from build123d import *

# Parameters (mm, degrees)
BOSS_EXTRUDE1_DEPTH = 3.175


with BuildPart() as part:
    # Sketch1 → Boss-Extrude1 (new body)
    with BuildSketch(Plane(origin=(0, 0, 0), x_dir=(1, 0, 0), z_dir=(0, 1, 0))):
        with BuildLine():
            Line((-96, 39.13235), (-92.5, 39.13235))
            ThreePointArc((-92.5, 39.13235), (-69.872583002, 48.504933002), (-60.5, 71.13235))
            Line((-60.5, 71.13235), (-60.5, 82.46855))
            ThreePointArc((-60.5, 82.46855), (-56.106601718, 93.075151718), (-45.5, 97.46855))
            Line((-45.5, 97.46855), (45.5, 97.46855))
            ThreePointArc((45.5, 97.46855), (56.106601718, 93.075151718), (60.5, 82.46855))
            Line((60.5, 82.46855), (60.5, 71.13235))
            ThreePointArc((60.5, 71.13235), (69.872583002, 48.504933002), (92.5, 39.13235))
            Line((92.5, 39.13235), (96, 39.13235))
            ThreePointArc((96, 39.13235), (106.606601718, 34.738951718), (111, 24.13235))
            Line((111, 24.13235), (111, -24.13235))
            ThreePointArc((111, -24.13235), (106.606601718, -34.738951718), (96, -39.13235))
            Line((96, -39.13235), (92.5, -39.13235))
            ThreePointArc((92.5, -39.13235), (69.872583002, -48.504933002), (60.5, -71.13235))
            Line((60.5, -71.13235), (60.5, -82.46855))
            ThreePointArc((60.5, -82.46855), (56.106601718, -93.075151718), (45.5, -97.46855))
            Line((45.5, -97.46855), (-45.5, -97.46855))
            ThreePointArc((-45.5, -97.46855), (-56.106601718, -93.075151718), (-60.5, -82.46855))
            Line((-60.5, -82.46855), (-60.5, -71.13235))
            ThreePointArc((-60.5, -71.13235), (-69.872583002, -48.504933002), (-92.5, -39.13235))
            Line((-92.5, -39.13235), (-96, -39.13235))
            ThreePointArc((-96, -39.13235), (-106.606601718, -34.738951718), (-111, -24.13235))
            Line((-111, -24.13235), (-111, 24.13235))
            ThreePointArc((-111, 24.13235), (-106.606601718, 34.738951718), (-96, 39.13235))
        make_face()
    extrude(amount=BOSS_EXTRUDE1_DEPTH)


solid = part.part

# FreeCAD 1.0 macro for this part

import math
import FreeCAD as App
import Part
import Sketcher

doc = App.newDocument("Part")
body = doc.addObject("PartDesign::Body", "Body")

# Sketch on XZ plane
sketch1 = body.newObject("Sketcher::SketchObject", "Sketch")
sketch1.AttachmentSupport = (doc.getObject("XZ_Plane"), [""])
sketch1.MapMode = "FlatFace"
sketch1.addGeometry([
    Part.LineSegment(App.Vector(-92.5, -39.1, 0), App.Vector(-96, -39.1, 0)),  # 0
    Part.ArcOfCircle(Part.Circle(App.Vector(-96, -24.1, 0), App.Vector(0, 0, 1), 15), math.radians(180), math.radians(270)),  # 1
    Part.LineSegment(App.Vector(-111, -24.1, 0), App.Vector(-111, 24.1, 0)),  # 2
    Part.ArcOfCircle(Part.Circle(App.Vector(-96, 24.1, 0), App.Vector(0, 0, 1), 15), math.radians(90), math.radians(180)),  # 3
    Part.LineSegment(App.Vector(-96, 39.1, 0), App.Vector(-92.5, 39.1, 0)),  # 4
    Part.ArcOfCircle(Part.Circle(App.Vector(-92.5, 71.1, 0), App.Vector(0, 0, 1), 32), math.radians(-90), math.radians(0)),  # 5
    Part.LineSegment(App.Vector(-60.5, 71.1, 0), App.Vector(-60.5, 82.5, 0)),  # 6
    Part.ArcOfCircle(Part.Circle(App.Vector(-45.5, 82.5, 0), App.Vector(0, 0, 1), 15), math.radians(90), math.radians(180)),  # 7
    Part.LineSegment(App.Vector(-45.5, 97.5, 0), App.Vector(45.5, 97.5, 0)),  # 8
    Part.ArcOfCircle(Part.Circle(App.Vector(45.5, 82.5, 0), App.Vector(0, 0, 1), 15), math.radians(0), math.radians(90)),  # 9
    Part.LineSegment(App.Vector(60.5, 82.5, 0), App.Vector(60.5, 71.1, 0)),  # 10
    Part.ArcOfCircle(Part.Circle(App.Vector(92.5, 71.1, 0), App.Vector(0, 0, 1), 32), math.radians(180), math.radians(270)),  # 11
    Part.LineSegment(App.Vector(92.5, 39.1, 0), App.Vector(96, 39.1, 0)),  # 12
    Part.ArcOfCircle(Part.Circle(App.Vector(96, 24.1, 0), App.Vector(0, 0, 1), 15), math.radians(0), math.radians(90)),  # 13
    Part.LineSegment(App.Vector(111, 24.1, 0), App.Vector(111, -24.1, 0)),  # 14
    Part.ArcOfCircle(Part.Circle(App.Vector(96, -24.1, 0), App.Vector(0, 0, 1), 15), math.radians(-90), math.radians(0)),  # 15
    Part.LineSegment(App.Vector(96, -39.1, 0), App.Vector(92.5, -39.1, 0)),  # 16
    Part.ArcOfCircle(Part.Circle(App.Vector(92.5, -71.1, 0), App.Vector(0, 0, 1), 32), math.radians(90), math.radians(180)),  # 17
    Part.LineSegment(App.Vector(60.5, -71.1, 0), App.Vector(60.5, -82.5, 0)),  # 18
    Part.ArcOfCircle(Part.Circle(App.Vector(45.5, -82.5, 0), App.Vector(0, 0, 1), 15), math.radians(-90), math.radians(0)),  # 19
    Part.LineSegment(App.Vector(45.5, -97.5, 0), App.Vector(-45.5, -97.5, 0)),  # 20
    Part.ArcOfCircle(Part.Circle(App.Vector(-45.5, -82.5, 0), App.Vector(0, 0, 1), 15), math.radians(180), math.radians(270)),  # 21
    Part.LineSegment(App.Vector(-60.5, -82.5, 0), App.Vector(-60.5, -71.1, 0)),  # 22
    Part.ArcOfCircle(Part.Circle(App.Vector(-92.5, -71.1, 0), App.Vector(0, 0, 1), 32), math.radians(0), math.radians(90)),  # 23
], False)
sketch1.addConstraint([
    Sketcher.Constraint("Tangent", 0, 2, 1, 2),
    Sketcher.Constraint("Tangent", 1, 1, 2, 1),
    Sketcher.Constraint("Tangent", 2, 2, 3, 2),
    Sketcher.Constraint("Tangent", 3, 1, 4, 1),
    Sketcher.Constraint("Tangent", 4, 2, 5, 1),
    Sketcher.Constraint("Tangent", 5, 2, 6, 1),
    Sketcher.Constraint("Tangent", 6, 2, 7, 2),
    Sketcher.Constraint("Tangent", 7, 1, 8, 1),
    Sketcher.Constraint("Tangent", 8, 2, 9, 2),
    Sketcher.Constraint("Tangent", 9, 1, 10, 1),
    Sketcher.Constraint("Tangent", 10, 2, 11, 1),
    Sketcher.Constraint("Tangent", 11, 2, 12, 1),
    Sketcher.Constraint("Tangent", 12, 2, 13, 2),
    Sketcher.Constraint("Tangent", 13, 1, 14, 1),
    Sketcher.Constraint("Tangent", 14, 2, 15, 2),
    Sketcher.Constraint("Tangent", 15, 1, 16, 1),
    Sketcher.Constraint("Tangent", 16, 2, 17, 1),
    Sketcher.Constraint("Tangent", 17, 2, 18, 1),
    Sketcher.Constraint("Tangent", 18, 2, 19, 2),
    Sketcher.Constraint("Tangent", 19, 1, 20, 1),
    Sketcher.Constraint("Tangent", 20, 2, 21, 2),
    Sketcher.Constraint("Tangent", 21, 1, 22, 1),
    Sketcher.Constraint("Tangent", 22, 2, 23, 1),
    Sketcher.Constraint("Tangent", 23, 2, 0, 1),
    Sketcher.Constraint("Horizontal", 0),
    Sketcher.Constraint("Vertical", 2),
    Sketcher.Constraint("Horizontal", 4),
    Sketcher.Constraint("Vertical", 6),
    Sketcher.Constraint("Horizontal", 8),
    Sketcher.Constraint("Vertical", 10),
    Sketcher.Constraint("Horizontal", 12),
    Sketcher.Constraint("Vertical", 14),
    Sketcher.Constraint("Horizontal", 16),
    Sketcher.Constraint("Vertical", 18),
    Sketcher.Constraint("Horizontal", 20),
    Sketcher.Constraint("Vertical", 22),
    Sketcher.Constraint("Equal", 1, 3),
    Sketcher.Constraint("Equal", 3, 7),
    Sketcher.Constraint("Equal", 7, 9),
    Sketcher.Constraint("Equal", 5, 11),
    Sketcher.Constraint("Equal", 9, 13),
    Sketcher.Constraint("Equal", 13, 15),
    Sketcher.Constraint("Equal", 11, 17),
    Sketcher.Constraint("Equal", 15, 19),
    Sketcher.Constraint("Equal", 19, 21),
    Sketcher.Constraint("Equal", 17, 23),
    Sketcher.Constraint("Symmetric", 1, 3, 13, 3, -1, 1),
    Sketcher.Constraint("Symmetric", 5, 3, 17, 3, -1, 1),
    Sketcher.Constraint("Symmetric", 9, 3, 21, 3, -1, 1),
    Sketcher.Constraint("Symmetric", 5, 3, 11, 3, -2),
    Sketcher.Constraint("Radius", 1, 15.0),
    Sketcher.Constraint("Radius", 5, 32.0),
    Sketcher.Constraint("DistanceX", 8, 1, 8, 2, 91.0),
    Sketcher.Constraint("DistanceX", 0, 2, 0, 1, 3.5),
    Sketcher.Constraint("DistanceY", 2, 1, 2, 2, 48.2647),
    Sketcher.Constraint("DistanceY", 6, 1, 6, 2, 11.3362),
])
pad1 = body.newObject("PartDesign::Pad", "Pad")
pad1.Profile = sketch1
pad1.Length = 3.175
pad1.Reversed = True

doc.recompute()
